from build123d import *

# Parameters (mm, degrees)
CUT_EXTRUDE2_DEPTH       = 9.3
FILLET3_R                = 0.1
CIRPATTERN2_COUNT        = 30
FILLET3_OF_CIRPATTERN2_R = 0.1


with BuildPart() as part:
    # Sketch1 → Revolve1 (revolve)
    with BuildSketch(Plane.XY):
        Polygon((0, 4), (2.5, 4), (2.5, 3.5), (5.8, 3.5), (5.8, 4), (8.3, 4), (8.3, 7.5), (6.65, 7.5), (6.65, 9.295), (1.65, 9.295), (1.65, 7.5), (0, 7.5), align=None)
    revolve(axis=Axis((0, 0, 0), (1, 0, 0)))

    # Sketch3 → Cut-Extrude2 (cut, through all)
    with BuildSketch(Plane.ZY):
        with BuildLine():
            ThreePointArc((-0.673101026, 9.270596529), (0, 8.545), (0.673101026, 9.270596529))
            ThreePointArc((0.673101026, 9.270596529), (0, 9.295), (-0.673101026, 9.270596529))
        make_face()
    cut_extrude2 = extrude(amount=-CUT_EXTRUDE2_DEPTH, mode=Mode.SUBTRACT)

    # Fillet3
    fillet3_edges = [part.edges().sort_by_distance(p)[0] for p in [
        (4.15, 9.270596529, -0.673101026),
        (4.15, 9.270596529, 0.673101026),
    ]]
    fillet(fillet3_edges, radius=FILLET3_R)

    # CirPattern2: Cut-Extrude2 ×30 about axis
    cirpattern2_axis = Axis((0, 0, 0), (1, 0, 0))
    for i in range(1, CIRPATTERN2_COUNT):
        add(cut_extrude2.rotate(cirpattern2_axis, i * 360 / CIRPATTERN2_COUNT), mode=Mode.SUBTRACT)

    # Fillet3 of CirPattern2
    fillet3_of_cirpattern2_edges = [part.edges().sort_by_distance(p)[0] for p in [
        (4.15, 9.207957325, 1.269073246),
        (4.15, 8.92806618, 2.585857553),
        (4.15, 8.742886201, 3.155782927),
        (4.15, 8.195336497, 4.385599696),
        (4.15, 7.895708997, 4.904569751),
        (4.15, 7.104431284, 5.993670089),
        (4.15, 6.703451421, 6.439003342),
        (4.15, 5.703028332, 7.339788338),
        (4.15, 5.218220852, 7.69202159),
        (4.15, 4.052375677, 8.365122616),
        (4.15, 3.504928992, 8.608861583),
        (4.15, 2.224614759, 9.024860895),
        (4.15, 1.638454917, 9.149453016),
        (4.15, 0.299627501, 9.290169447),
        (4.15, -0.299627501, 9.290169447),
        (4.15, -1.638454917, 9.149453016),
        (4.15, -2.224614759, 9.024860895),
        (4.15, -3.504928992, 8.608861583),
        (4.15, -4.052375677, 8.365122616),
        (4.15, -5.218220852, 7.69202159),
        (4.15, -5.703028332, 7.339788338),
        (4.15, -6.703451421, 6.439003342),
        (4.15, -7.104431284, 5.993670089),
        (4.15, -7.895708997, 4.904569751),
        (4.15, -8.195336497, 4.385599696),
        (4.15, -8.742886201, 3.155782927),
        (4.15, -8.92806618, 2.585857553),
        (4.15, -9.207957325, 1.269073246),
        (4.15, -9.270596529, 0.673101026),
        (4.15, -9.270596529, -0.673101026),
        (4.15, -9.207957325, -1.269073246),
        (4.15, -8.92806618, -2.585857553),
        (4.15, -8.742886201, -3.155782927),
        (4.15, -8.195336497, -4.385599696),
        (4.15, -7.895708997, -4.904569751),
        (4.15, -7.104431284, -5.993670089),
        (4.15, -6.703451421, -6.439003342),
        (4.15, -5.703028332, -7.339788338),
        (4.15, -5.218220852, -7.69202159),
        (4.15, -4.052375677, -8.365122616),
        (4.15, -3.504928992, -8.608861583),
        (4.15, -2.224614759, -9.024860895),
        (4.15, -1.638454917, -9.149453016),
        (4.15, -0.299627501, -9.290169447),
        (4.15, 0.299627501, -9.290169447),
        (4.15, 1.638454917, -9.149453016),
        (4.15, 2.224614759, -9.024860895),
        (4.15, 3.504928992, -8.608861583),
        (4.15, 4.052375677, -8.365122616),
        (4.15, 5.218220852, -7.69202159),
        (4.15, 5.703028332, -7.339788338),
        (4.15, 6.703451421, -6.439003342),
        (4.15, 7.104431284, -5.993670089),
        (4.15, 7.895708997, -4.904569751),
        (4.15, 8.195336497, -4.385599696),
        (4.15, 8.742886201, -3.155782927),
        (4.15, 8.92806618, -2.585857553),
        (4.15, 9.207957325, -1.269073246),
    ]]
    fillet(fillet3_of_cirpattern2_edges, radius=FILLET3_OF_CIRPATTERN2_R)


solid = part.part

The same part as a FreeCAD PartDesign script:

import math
import FreeCAD as App
import Part
import Sketcher
Q = App.Units.Quantity


def edges_at(feature, points):
    """Names of the edges that pass closest to the given points."""
    edges = feature.Shape.Edges
    near = lambda p: min(range(len(edges)), key=lambda i: edges[i].distToShape(Part.Vertex(*p))[0])
    return sorted({f"Edge{near(p) + 1}" for p in points})


def add_polygon(sketch, points):
    """Adds a closed chain of lines whose ends are joined by coincident constraints."""
    first, n = sketch.GeometryCount, len(points)
    for a, b in zip(points, points[1:] + points[:1]):
        sketch.addGeometry(Part.LineSegment(App.Vector(*a, 0), App.Vector(*b, 0)), False)
    for i in range(n):
        sketch.addConstraint(Sketcher.Constraint("Coincident", first + i, 2, first + (i + 1) % n, 1))

doc = App.newDocument("Part")
body = doc.addObject("PartDesign::Body", "Body")

# Sketch on XY plane
sketch1 = doc.addObject("Sketcher::SketchObject", "Sketch")
body.addObject(sketch1)
sketch1.AttachmentSupport = (doc.XY_Plane, [""])
sketch1.MapMode = "FlatFace"
add_polygon(sketch1, [(0, 4), (2.5, 4), (2.5, 3.5), (5.8, 3.5), (5.8, 4), (8.3, 4), (8.3, 7.5), (6.7, 7.5), (6.7, 9.3), (1.6, 9.3), (1.6, 7.5), (0, 7.5)])  # lines 0-11
sketch1.addConstraint(Sketcher.Constraint("Horizontal", 0))
sketch1.addConstraint(Sketcher.Constraint("Vertical", 1))
sketch1.addConstraint(Sketcher.Constraint("Horizontal", 2))
sketch1.addConstraint(Sketcher.Constraint("Vertical", 3))
sketch1.addConstraint(Sketcher.Constraint("Horizontal", 4))
sketch1.addConstraint(Sketcher.Constraint("Vertical", 5))
sketch1.addConstraint(Sketcher.Constraint("Horizontal", 6))
sketch1.addConstraint(Sketcher.Constraint("Vertical", 7))
sketch1.addConstraint(Sketcher.Constraint("Horizontal", 8))
sketch1.addConstraint(Sketcher.Constraint("Vertical", 9))
sketch1.addConstraint(Sketcher.Constraint("Horizontal", 10))
sketch1.addConstraint(Sketcher.Constraint("Vertical", 11))
sketch1.addConstraint(Sketcher.Constraint("PointOnObject", 10, 2, -2))
sketch1.addConstraint(Sketcher.Constraint("Horizontal", 0, 2, 3, 2))
sketch1.addConstraint(Sketcher.Constraint("Horizontal", 6, 2, 9, 2))
sketch1.addConstraint(Sketcher.Constraint("Equal", 0, 4))
sketch1.addConstraint(Sketcher.Constraint("Equal", 6, 10))
sketch1.addConstraint(Sketcher.Constraint("DistanceX", 8, 2, 8, 1, Q("5 mm")))
sketch1.addConstraint(Sketcher.Constraint("DistanceX", 0, 1, 0, 2, Q("2.5 mm")))
sketch1.addConstraint(Sketcher.Constraint("DistanceX", 2, 1, 2, 2, Q("3.3 mm")))
sketch1.addConstraint(Sketcher.Constraint("DistanceY", 1, 2, 1, 1, Q("0.5 mm")))
sketch1.addConstraint(Sketcher.Constraint("DistanceY", 5, 1, 5, 2, Q("3.5 mm")))
sketch1.addConstraint(Sketcher.Constraint("DistanceY", -1, 1, 0, 2, Q("4 mm")))
sketch1.addConstraint(Sketcher.Constraint("DistanceY", 7, 1, 7, 2, Q("1.795 mm")))
revolution = doc.addObject("PartDesign::Revolution", "Revolution")
body.addObject(revolution)
revolution.Profile = sketch1
revolution.ReferenceAxis = (sketch1, ["H_Axis"])
revolution.Angle = 360

# Sketch on YZ plane
sketch2 = doc.addObject("Sketcher::SketchObject", "Sketch001")
body.addObject(sketch2)
sketch2.AttachmentSupport = (doc.YZ_Plane, [""])
sketch2.MapMode = "FlatFace"
sketch2.addGeometry(Part.ArcOfCircle(Part.Circle(App.Vector(9.2, 0, 0), App.Vector(0, 0, 1), 0.7), math.radians(86), math.radians(274)), False)
sketch2.addGeometry(Part.ArcOfCircle(Part.Circle(App.Vector(0, 0, 0), App.Vector(0, 0, 1), 9.3), math.radians(-4.15), math.radians(4.15)), False)
sketch2.addConstraint(Sketcher.Constraint("Coincident", 0, 1, 1, 2))
sketch2.addConstraint(Sketcher.Constraint("Coincident", 1, 1, 0, 2))
sketch2.addConstraint(Sketcher.Constraint("Coincident", 1, 3, -1, 1))
sketch2.addConstraint(Sketcher.Constraint("PointOnObject", 0, 3, -1))
sketch2.addConstraint(Sketcher.Constraint("Radius", 0, Q("0.675 mm")))
sketch2.addConstraint(Sketcher.Constraint("Radius", 1, Q("9.295 mm")))
sketch2.addConstraint(Sketcher.Constraint("DistanceX", -1, 1, 0, 3, Q("9.22 mm")))
pocket1 = doc.addObject("PartDesign::Pocket", "Pocket")
body.addObject(pocket1)
pocket1.Profile = sketch2
pocket1.Type = "ThroughAll"
pocket1.Reversed = True
doc.recompute()

fillet = doc.addObject("PartDesign::Fillet", "Fillet")
body.addObject(fillet)
fillet.Base = (pocket1, edges_at(pocket1, [(4.15, 9.271, -0.673), (4.15, 9.271, 0.673)]))
fillet.Radius = 0.1
doc.recompute()

polarpattern = doc.addObject("PartDesign::PolarPattern", "PolarPattern")
body.addObject(polarpattern)
polarpattern.Originals = [pocket1]
polarpattern.Axis = (doc.X_Axis, [""])
polarpattern.Angle = 360
polarpattern.Occurrences = 30
body.Tip = polarpattern
doc.recompute()

fillet2 = doc.addObject("PartDesign::Fillet", "Fillet001")
body.addObject(fillet2)
fillet2.Base = (polarpattern, edges_at(polarpattern, [
    (4.15, 9.208, 1.269),
    (4.15, 8.928, 2.586),
    (4.15, 8.743, 3.156),
    (4.15, 8.195, 4.386),
    (4.15, 7.896, 4.905),
    (4.15, 7.104, 5.994),
    (4.15, 6.703, 6.439),
    (4.15, 5.703, 7.34),
    (4.15, 5.218, 7.692),
    (4.15, 4.052, 8.365),
    (4.15, 3.505, 8.609),
    (4.15, 2.225, 9.025),
    (4.15, 1.638, 9.149),
    (4.15, 0.3, 9.29),
    (4.15, -0.3, 9.29),
    (4.15, -1.638, 9.149),
    (4.15, -2.225, 9.025),
    (4.15, -3.505, 8.609),
    (4.15, -4.052, 8.365),
    (4.15, -5.218, 7.692),
    (4.15, -5.703, 7.34),
    (4.15, -6.703, 6.439),
    (4.15, -7.104, 5.994),
    (4.15, -7.896, 4.905),
    (4.15, -8.195, 4.386),
    (4.15, -8.743, 3.156),
    (4.15, -8.928, 2.586),
    (4.15, -9.208, 1.269),
    (4.15, -9.271, 0.673),
    (4.15, -9.271, -0.673),
    (4.15, -9.208, -1.269),
    (4.15, -8.928, -2.586),
    (4.15, -8.743, -3.156),
    (4.15, -8.195, -4.386),
    (4.15, -7.896, -4.905),
    (4.15, -7.104, -5.994),
    (4.15, -6.703, -6.439),
    (4.15, -5.703, -7.34),
    (4.15, -5.218, -7.692),
    (4.15, -4.052, -8.365),
    (4.15, -3.505, -8.609),
    (4.15, -2.225, -9.025),
    (4.15, -1.638, -9.149),
    (4.15, -0.3, -9.29),
    (4.15, 0.3, -9.29),
    (4.15, 1.638, -9.149),
    (4.15, 2.225, -9.025),
    (4.15, 3.505, -8.609),
    (4.15, 4.052, -8.365),
    (4.15, 5.218, -7.692),
    (4.15, 5.703, -7.34),
    (4.15, 6.703, -6.439),
    (4.15, 7.104, -5.994),
    (4.15, 7.896, -4.905),
    (4.15, 8.195, -4.386),
    (4.15, 8.743, -3.156),
    (4.15, 8.928, -2.586),
    (4.15, 9.208, -1.269),
]))
fillet2.Radius = 0.1

doc.recompute()
